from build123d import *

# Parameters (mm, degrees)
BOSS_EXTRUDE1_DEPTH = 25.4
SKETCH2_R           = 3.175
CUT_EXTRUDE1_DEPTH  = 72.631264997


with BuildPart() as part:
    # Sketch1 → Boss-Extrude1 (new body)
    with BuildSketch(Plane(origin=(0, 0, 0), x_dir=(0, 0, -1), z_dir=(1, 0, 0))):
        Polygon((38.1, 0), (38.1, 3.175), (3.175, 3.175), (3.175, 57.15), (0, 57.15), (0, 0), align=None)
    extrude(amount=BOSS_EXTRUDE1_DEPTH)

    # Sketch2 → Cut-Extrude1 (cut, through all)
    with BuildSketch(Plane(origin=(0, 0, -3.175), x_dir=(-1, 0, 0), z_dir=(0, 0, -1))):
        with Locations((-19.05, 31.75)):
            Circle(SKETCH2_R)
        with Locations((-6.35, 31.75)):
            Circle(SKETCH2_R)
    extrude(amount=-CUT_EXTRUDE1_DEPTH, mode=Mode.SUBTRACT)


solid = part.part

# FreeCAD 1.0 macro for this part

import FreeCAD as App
import Part
import Sketcher

V = App.Vector
Q = App.Units.Quantity


def add_polygon(sketch, points):
    """Adds a closed chain of lines whose ends are joined by coincident constraints."""
    first, n = sketch.GeometryCount, len(points)
    for a, b in zip(points, points[1:] + points[:1]):
        sketch.addGeometry(Part.LineSegment(App.Vector(*a, 0), App.Vector(*b, 0)), False)
    for i in range(n):
        sketch.addConstraint(Sketcher.Constraint("Coincident", first + i, 2, first + (i + 1) % n, 1))

doc = App.newDocument("Part")
body = doc.addObject("PartDesign::Body", "Body")

# Sketch on YZ plane
sketch1 = body.newObject("Sketcher::SketchObject", "Sketch")
sketch1.AttachmentSupport = (doc.getObject("YZ_Plane"), [""])
sketch1.MapMode = "FlatFace"
add_polygon(sketch1, [(0, -38.1), (3.2, -38.1), (3.2, -3.2), (57.1, -3.2), (57.1, 0), (0, 0)])  # lines 0-5
sketch1.addConstraint([
    Sketcher.Constraint("Horizontal", 0),
    Sketcher.Constraint("Vertical", 1),
    Sketcher.Constraint("Horizontal", 2),
    Sketcher.Constraint("Vertical", 3),
    Sketcher.Constraint("Horizontal", 4),
    Sketcher.Constraint("Vertical", 5),
    Sketcher.Constraint("Coincident", 4, 2, -1, 1),
    Sketcher.Constraint("Equal", 0, 3),
    Sketcher.Constraint("DistanceY", 5, 2, 5, 1, Q("1.5 in")),
    Sketcher.Constraint("DistanceX", 4, 2, 4, 1, Q("2.25 in")),
    Sketcher.Constraint("DistanceX", 0, 1, 0, 2, Q("0.125 in")),
])
pad1 = body.newObject("PartDesign::Pad", "Pad")
pad1.Profile = sketch1
pad1.Length = Q("1 in")

# Sketch on XY plane
sketch2 = body.newObject("Sketcher::SketchObject", "Sketch001")
sketch2.AttachmentSupport = (doc.getObject("XY_Plane"), [""])
sketch2.MapMode = "FlatFace"
sketch2.AttachmentOffset = App.Placement(V(0, 0, -0.125 * 25.4), App.Rotation())
sketch2.addGeometry([
    Part.Circle(V(19.1, 31.8, 0), V(0, 0, 1), 3.2),
    Part.Circle(V(6.3, 31.8, 0), V(0, 0, 1), 3.2),
], False)
sketch2.addConstraint([
    Sketcher.Constraint("Equal", 0, 1),
    Sketcher.Constraint("Horizontal", 0, 3, 1, 3),
    Sketcher.Constraint("Diameter", 0, Q("0.25 in")),
    Sketcher.Constraint("DistanceX", 1, 3, 0, 3, Q("0.5 in")),
    Sketcher.Constraint("DistanceX", -1, 1, 0, 3, Q("0.75 in")),
    Sketcher.Constraint("DistanceY", -1, 1, 0, 3, Q("1.25 in")),
])
pocket1 = body.newObject("PartDesign::Pocket", "Pocket")
pocket1.Profile = sketch2
pocket1.Type = "ThroughAll"
pocket1.Reversed = True

doc.recompute()
